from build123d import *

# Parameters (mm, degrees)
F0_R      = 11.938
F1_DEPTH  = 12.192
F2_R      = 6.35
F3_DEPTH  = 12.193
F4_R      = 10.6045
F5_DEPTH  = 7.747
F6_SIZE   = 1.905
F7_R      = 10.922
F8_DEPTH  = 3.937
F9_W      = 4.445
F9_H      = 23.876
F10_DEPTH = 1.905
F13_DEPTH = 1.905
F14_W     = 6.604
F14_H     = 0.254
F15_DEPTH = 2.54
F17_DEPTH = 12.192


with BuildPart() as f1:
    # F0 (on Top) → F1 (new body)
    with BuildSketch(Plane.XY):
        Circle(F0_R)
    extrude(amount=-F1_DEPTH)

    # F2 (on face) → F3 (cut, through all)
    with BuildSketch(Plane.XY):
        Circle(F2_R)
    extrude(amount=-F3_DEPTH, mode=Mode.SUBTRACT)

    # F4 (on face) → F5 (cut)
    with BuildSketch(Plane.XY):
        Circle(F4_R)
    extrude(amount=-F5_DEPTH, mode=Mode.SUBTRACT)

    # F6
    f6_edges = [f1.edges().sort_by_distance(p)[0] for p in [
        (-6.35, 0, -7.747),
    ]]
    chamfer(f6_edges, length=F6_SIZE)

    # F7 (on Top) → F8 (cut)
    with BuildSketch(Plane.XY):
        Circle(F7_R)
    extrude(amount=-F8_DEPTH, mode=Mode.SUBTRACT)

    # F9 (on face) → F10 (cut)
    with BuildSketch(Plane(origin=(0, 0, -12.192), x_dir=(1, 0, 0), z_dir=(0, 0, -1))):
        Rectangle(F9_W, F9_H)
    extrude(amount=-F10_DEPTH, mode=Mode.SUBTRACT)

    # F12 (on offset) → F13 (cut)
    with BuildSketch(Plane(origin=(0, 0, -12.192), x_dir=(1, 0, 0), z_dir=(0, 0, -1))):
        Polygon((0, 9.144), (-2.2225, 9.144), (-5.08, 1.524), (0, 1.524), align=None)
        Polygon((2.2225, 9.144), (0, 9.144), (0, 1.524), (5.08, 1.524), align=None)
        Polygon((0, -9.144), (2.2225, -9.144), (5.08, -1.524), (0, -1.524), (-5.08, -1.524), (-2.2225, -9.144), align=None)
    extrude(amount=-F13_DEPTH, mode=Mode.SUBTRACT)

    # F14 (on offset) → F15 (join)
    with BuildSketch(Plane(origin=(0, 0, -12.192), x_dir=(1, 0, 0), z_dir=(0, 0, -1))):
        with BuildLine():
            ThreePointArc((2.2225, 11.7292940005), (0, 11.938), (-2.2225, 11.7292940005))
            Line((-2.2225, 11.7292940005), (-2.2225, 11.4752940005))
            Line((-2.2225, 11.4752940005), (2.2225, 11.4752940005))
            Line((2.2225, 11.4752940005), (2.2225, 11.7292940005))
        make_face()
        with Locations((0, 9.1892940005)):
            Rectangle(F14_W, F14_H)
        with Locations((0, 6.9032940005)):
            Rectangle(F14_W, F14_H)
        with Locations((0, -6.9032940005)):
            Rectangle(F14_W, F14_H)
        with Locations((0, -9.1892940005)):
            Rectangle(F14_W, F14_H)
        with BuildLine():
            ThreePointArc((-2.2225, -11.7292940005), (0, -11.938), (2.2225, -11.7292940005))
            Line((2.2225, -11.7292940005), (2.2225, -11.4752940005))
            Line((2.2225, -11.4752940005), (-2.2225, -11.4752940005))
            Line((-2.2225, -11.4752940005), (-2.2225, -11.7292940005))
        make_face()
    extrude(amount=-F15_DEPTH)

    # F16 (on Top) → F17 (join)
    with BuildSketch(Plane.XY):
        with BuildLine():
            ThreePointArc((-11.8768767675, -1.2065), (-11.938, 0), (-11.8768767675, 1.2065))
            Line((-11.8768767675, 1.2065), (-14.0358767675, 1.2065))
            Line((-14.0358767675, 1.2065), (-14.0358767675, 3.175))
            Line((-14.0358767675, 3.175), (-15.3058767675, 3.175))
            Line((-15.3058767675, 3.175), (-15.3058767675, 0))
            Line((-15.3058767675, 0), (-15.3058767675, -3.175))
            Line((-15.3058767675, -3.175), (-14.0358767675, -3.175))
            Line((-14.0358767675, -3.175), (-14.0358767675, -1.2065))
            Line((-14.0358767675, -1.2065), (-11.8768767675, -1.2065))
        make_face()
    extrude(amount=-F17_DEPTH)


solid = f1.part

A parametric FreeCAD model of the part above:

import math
import FreeCAD as App
import Part
import Sketcher
from FreeCAD import Vector
Q = App.Units.Quantity


def edges_at(feature, points):
    """Names of the edges that pass closest to the given points."""
    edges = feature.Shape.Edges
    near = lambda p: min(range(len(edges)), key=lambda i: edges[i].distToShape(Part.Vertex(*p))[0])
    return sorted({f"Edge{near(p) + 1}" for p in points})

doc = App.newDocument("Part")
body = doc.addObject("PartDesign::Body", "Body")

sketch1 = doc.addObject("Sketcher::SketchObject", "Sketch")
body.addObject(sketch1)
sketch1.AttachmentSupport = (doc.XY_Plane, [""])
sketch1.MapMode = "FlatFace"
sketch1.addGeometry(Part.Circle(Vector(0, 0, 0), Vector(0, 0, 1), 12), False)
sketch1.addConstraint([
    Sketcher.Constraint("Coincident", 0, 3, -1, 1),
    Sketcher.Constraint("Diameter", 0, Q("0.94 in")),
])
pad1 = doc.addObject("PartDesign::Pad", "Pad")
body.addObject(pad1)
pad1.Profile = sketch1
pad1.Length = Q("0.48 in")
pad1.Reversed = True

sketch2 = doc.addObject("Sketcher::SketchObject", "Sketch001")
body.addObject(sketch2)
sketch2.AttachmentSupport = (doc.XY_Plane, [""])
sketch2.MapMode = "FlatFace"
sketch2.addGeometry(Part.Circle(Vector(0, 0, 0), Vector(0, 0, 1), 6), False)
sketch2.addConstraint([
    Sketcher.Constraint("Coincident", 0, 3, -1, 1),
    Sketcher.Constraint("Diameter", 0, Q("0.5 in")),
])
pocket1 = doc.addObject("PartDesign::Pocket", "Pocket")
body.addObject(pocket1)
pocket1.Profile = sketch2
pocket1.Type = "ThroughAll"

sketch3 = doc.addObject("Sketcher::SketchObject", "Sketch002")
body.addObject(sketch3)
sketch3.AttachmentSupport = (doc.XY_Plane, [""])
sketch3.MapMode = "FlatFace"
sketch3.addGeometry(Part.Circle(Vector(0, 0, 0), Vector(0, 0, 1), 11), False)
sketch3.addConstraint([
    Sketcher.Constraint("Coincident", 0, 3, -1, 1),
    Sketcher.Constraint("Diameter", 0, Q("0.835 in")),
])
pocket2 = doc.addObject("PartDesign::Pocket", "Pocket001")
body.addObject(pocket2)
pocket2.Profile = sketch3
pocket2.Length = Q("0.305 in")
doc.recompute()

chamfer = doc.addObject("PartDesign::Chamfer", "Chamfer")
body.addObject(chamfer)
chamfer.Base = (pocket2, edges_at(pocket2, [(-6.35, 0, -7.747)]))
chamfer.Size = Q("0.075 in")

sketch4 = doc.addObject("Sketcher::SketchObject", "Sketch003")
body.addObject(sketch4)
sketch4.AttachmentSupport = (doc.XY_Plane, [""])
sketch4.MapMode = "FlatFace"
sketch4.addGeometry(Part.Circle(Vector(0, 0, 0), Vector(0, 0, 1), 11), False)
sketch4.addConstraint([
    Sketcher.Constraint("Coincident", 0, 3, -1, 1),
    Sketcher.Constraint("Diameter", 0, Q("0.86 in")),
])
pocket3 = doc.addObject("PartDesign::Pocket", "Pocket002")
body.addObject(pocket3)
pocket3.Profile = sketch4
pocket3.Length = Q("0.155 in")

sketch5 = doc.addObject("Sketcher::SketchObject", "Sketch004")
body.addObject(sketch5)
sketch5.AttachmentSupport = (doc.XY_Plane, [""])
sketch5.MapMode = "FlatFace"
sketch5.AttachmentOffset = App.Placement(Vector(0, 0, -0.48 * 25.4), App.Rotation())
sketch5.addGeometry([
    Part.LineSegment(Vector(-2.2, -11.9, 0), Vector(-2.2, 11.9, 0)),
    Part.LineSegment(Vector(-2.2, 11.9, 0), Vector(2.2, 11.9, 0)),
    Part.LineSegment(Vector(2.2, 11.9, 0), Vector(2.2, -11.9, 0)),
    Part.LineSegment(Vector(2.2, -11.9, 0), Vector(-2.2, -11.9, 0)),
], False)
sketch5.addConstraint([
    Sketcher.Constraint("Coincident", 0, 2, 1, 1),
    Sketcher.Constraint("Coincident", 1, 2, 2, 1),
    Sketcher.Constraint("Coincident", 2, 2, 3, 1),
    Sketcher.Constraint("Coincident", 3, 2, 0, 1),
    Sketcher.Constraint("Vertical", 0),
    Sketcher.Constraint("Horizontal", 1),
    Sketcher.Constraint("Vertical", 2),
    Sketcher.Constraint("Horizontal", 3),
    Sketcher.Constraint("Symmetric", 0, 2, 2, 2, -1, 1),
    Sketcher.Constraint("DistanceY", 0, 1, 0, 2, Q("0.94 in")),
    Sketcher.Constraint("DistanceX", 1, 1, 1, 2, Q("0.175 in")),
])
pocket4 = doc.addObject("PartDesign::Pocket", "Pocket003")
body.addObject(pocket4)
pocket4.Profile = sketch5
pocket4.Length = Q("0.075 in")
pocket4.Reversed = True

sketch6 = doc.addObject("Sketcher::SketchObject", "Sketch005")
body.addObject(sketch6)
sketch6.AttachmentSupport = (doc.XY_Plane, [""])
sketch6.MapMode = "FlatFace"
sketch6.AttachmentOffset = App.Placement(Vector(0, 0, -0.48 * 25.4), App.Rotation())
sketch6.addGeometry([
    Part.LineSegment(Vector(-2.2, -9.1, 0), Vector(-5.1, -1.5, 0)),
    Part.LineSegment(Vector(-5.1, -1.5, 0), Vector(5.1, -1.5, 0)),
    Part.LineSegment(Vector(5.1, -1.5, 0), Vector(2.2, -9.1, 0)),
    Part.LineSegment(Vector(2.2, -9.1, 0), Vector(-2.2, -9.1, 0)),
    Part.LineSegment(Vector(2.2, 9.1, 0), Vector(5.1, 1.5, 0)),
    Part.LineSegment(Vector(5.1, 1.5, 0), Vector(-5.1, 1.5, 0)),
    Part.LineSegment(Vector(-5.1, 1.5, 0), Vector(-2.2, 9.1, 0)),
    Part.LineSegment(Vector(-2.2, 9.1, 0), Vector(2.2, 9.1, 0)),
], False)
sketch6.addConstraint([
    Sketcher.Constraint("Coincident", 0, 2, 1, 1),
    Sketcher.Constraint("Coincident", 1, 2, 2, 1),
    Sketcher.Constraint("Coincident", 2, 2, 3, 1),
    Sketcher.Constraint("Coincident", 3, 2, 0, 1),
    Sketcher.Constraint("Coincident", 4, 2, 5, 1),
    Sketcher.Constraint("Coincident", 5, 2, 6, 1),
    Sketcher.Constraint("Coincident", 6, 2, 7, 1),
    Sketcher.Constraint("Coincident", 7, 2, 4, 1),
    Sketcher.Constraint("Horizontal", 1),
    Sketcher.Constraint("Horizontal", 3),
    Sketcher.Constraint("Horizontal", 5),
    Sketcher.Constraint("Horizontal", 7),
    Sketcher.Constraint("Symmetric", 0, 2, 4, 2, -1, 1),
    Sketcher.Constraint("Symmetric", 2, 2, 6, 2, -1, 1),
    Sketcher.Constraint("Parallel", 0, 4),
    Sketcher.Constraint("Parallel", 2, 6),
    Sketcher.Constraint("Vertical", 1, 2, 4, 2),
    Sketcher.Constraint("Vertical", 3, 2, 6, 2),
    Sketcher.Constraint("DistanceX", 1, 1, 1, 2, Q("0.4 in")),
    Sketcher.Constraint("DistanceY", 2, 2, 1, 2, Q("0.3 in")),
    Sketcher.Constraint("DistanceX", 3, 2, 3, 1, Q("0.175 in")),
    Sketcher.Constraint("DistanceY", 0, 2, -1, 1, Q("0.06 in")),
])
pocket5 = doc.addObject("PartDesign::Pocket", "Pocket004")
body.addObject(pocket5)
pocket5.Profile = sketch6
pocket5.Length = Q("0.075 in")
pocket5.Reversed = True

sketch7 = doc.addObject("Sketcher::SketchObject", "Sketch006")
body.addObject(sketch7)
sketch7.AttachmentSupport = (doc.XY_Plane, [""])
sketch7.MapMode = "FlatFace"
sketch7.AttachmentOffset = App.Placement(Vector(0, 0, -0.48 * 25.4), App.Rotation())
sketch7.addGeometry([
    Part.ArcOfCircle(Part.Circle(Vector(0, 0, 0), Vector(0, 0, 1), 11.94), math.radians(-101), math.radians(-79)),
    Part.LineSegment(Vector(-2.22, -11.73, 0), Vector(-2.22, -11.48, 0)),
    Part.LineSegment(Vector(-2.22, -11.48, 0), Vector(2.22, -11.48, 0)),
    Part.LineSegment(Vector(2.22, -11.48, 0), Vector(2.22, -11.73, 0)),
    Part.LineSegment(Vector(-3.3, -9.32, 0), Vector(-3.3, -9.06, 0)),
    Part.LineSegment(Vector(-3.3, -9.06, 0), Vector(3.3, -9.06, 0)),
    Part.LineSegment(Vector(3.3, -9.06, 0), Vector(3.3, -9.32, 0)),
    Part.LineSegment(Vector(3.3, -9.32, 0), Vector(-3.3, -9.32, 0)),
    Part.LineSegment(Vector(-3.3, -7.03, 0), Vector(-3.3, -6.78, 0)),
    Part.LineSegment(Vector(-3.3, -6.78, 0), Vector(3.3, -6.78, 0)),
    Part.LineSegment(Vector(3.3, -6.78, 0), Vector(3.3, -7.03, 0)),
    Part.LineSegment(Vector(3.3, -7.03, 0), Vector(-3.3, -7.03, 0)),
    Part.LineSegment(Vector(-3.3, 6.78, 0), Vector(-3.3, 7.03, 0)),
    Part.LineSegment(Vector(-3.3, 7.03, 0), Vector(3.3, 7.03, 0)),
    Part.LineSegment(Vector(3.3, 7.03, 0), Vector(3.3, 6.78, 0)),
    Part.LineSegment(Vector(3.3, 6.78, 0), Vector(-3.3, 6.78, 0)),
    Part.LineSegment(Vector(-3.3, 9.06, 0), Vector(-3.3, 9.32, 0)),
    Part.LineSegment(Vector(-3.3, 9.32, 0), Vector(3.3, 9.32, 0)),
    Part.LineSegment(Vector(3.3, 9.32, 0), Vector(3.3, 9.06, 0)),
    Part.LineSegment(Vector(3.3, 9.06, 0), Vector(-3.3, 9.06, 0)),
    Part.ArcOfCircle(Part.Circle(Vector(0, 0, 0), Vector(0, 0, 1), 11.94), math.radians(79), math.radians(101)),
    Part.LineSegment(Vector(2.22, 11.73, 0), Vector(2.22, 11.48, 0)),
    Part.LineSegment(Vector(2.22, 11.48, 0), Vector(-2.22, 11.48, 0)),
    Part.LineSegment(Vector(-2.22, 11.48, 0), Vector(-2.22, 11.73, 0)),
], False)
sketch7.addConstraint([
    Sketcher.Constraint("Coincident", 0, 1, 1, 1),
    Sketcher.Constraint("Coincident", 1, 2, 2, 1),
    Sketcher.Constraint("Coincident", 2, 2, 3, 1),
    Sketcher.Constraint("Coincident", 3, 2, 0, 2),
    Sketcher.Constraint("Coincident", 4, 2, 5, 1),
    Sketcher.Constraint("Coincident", 5, 2, 6, 1),
    Sketcher.Constraint("Coincident", 6, 2, 7, 1),
    Sketcher.Constraint("Coincident", 7, 2, 4, 1),
    Sketcher.Constraint("Coincident", 8, 2, 9, 1),
    Sketcher.Constraint("Coincident", 9, 2, 10, 1),
    Sketcher.Constraint("Coincident", 10, 2, 11, 1),
    Sketcher.Constraint("Coincident", 11, 2, 8, 1),
    Sketcher.Constraint("Coincident", 12, 2, 13, 1),
    Sketcher.Constraint("Coincident", 13, 2, 14, 1),
    Sketcher.Constraint("Coincident", 14, 2, 15, 1),
    Sketcher.Constraint("Coincident", 15, 2, 12, 1),
    Sketcher.Constraint("Coincident", 16, 2, 17, 1),
    Sketcher.Constraint("Coincident", 17, 2, 18, 1),
    Sketcher.Constraint("Coincident", 18, 2, 19, 1),
    Sketcher.Constraint("Coincident", 19, 2, 16, 1),
    Sketcher.Constraint("Coincident", 20, 1, 21, 1),
    Sketcher.Constraint("Coincident", 21, 2, 22, 1),
    Sketcher.Constraint("Coincident", 22, 2, 23, 1),
    Sketcher.Constraint("Coincident", 23, 2, 20, 2),
    Sketcher.Constraint("Vertical", 1),
    Sketcher.Constraint("Horizontal", 2),
    Sketcher.Constraint("Vertical", 3),
    Sketcher.Constraint("Vertical", 4),
    Sketcher.Constraint("Horizontal", 5),
    Sketcher.Constraint("Vertical", 6),
    Sketcher.Constraint("Horizontal", 7),
    Sketcher.Constraint("Vertical", 8),
    Sketcher.Constraint("Horizontal", 9),
    Sketcher.Constraint("Vertical", 10),
    Sketcher.Constraint("Horizontal", 11),
    Sketcher.Constraint("Vertical", 12),
    Sketcher.Constraint("Horizontal", 13),
    Sketcher.Constraint("Vertical", 14),
    Sketcher.Constraint("Horizontal", 15),
    Sketcher.Constraint("Vertical", 16),
    Sketcher.Constraint("Horizontal", 17),
    Sketcher.Constraint("Vertical", 18),
    Sketcher.Constraint("Horizontal", 19),
    Sketcher.Constraint("Vertical", 21),
    Sketcher.Constraint("Horizontal", 22),
    Sketcher.Constraint("Vertical", 23),
    Sketcher.Constraint("Coincident", 0, 3, -1, 1),
    Sketcher.Constraint("Coincident", 20, 3, -1, 1),
    Sketcher.Constraint("Equal", 0, 20),
    Sketcher.Constraint("Symmetric", 10, 2, 12, 2, -1, 1),
    Sketcher.Constraint("Symmetric", 8, 2, 14, 2, -1, 1),
    Sketcher.Constraint("Symmetric", 6, 2, 16, 2, -1, 1),
    Sketcher.Constraint("Symmetric", 4, 2, 18, 2, -1, 1),
    Sketcher.Constraint("Symmetric", 1, 2, 21, 2, -1, 1),
    Sketcher.Constraint("Horizontal", 0, 1, 3, 2),
    Sketcher.Constraint("Horizontal", 20, 1, 23, 2),
    Sketcher.Constraint("Vertical", 7, 2, 8, 2),
    Sketcher.Constraint("Vertical", 6, 2, 9, 2),
    Sketcher.Constraint("Vertical", 11, 2, 12, 2),
    Sketcher.Constraint("Equal", 3, 4),
    Sketcher.Constraint("Equal", 6, 8),
    Sketcher.Constraint("Radius", 0, Q("0.47 in")),
    Sketcher.Constraint("DistanceX", 5, 1, 5, 2, Q("0.26 in")),
    Sketcher.Constraint("DistanceY", 1, 1, 1, 2, Q("0.01 in")),
    Sketcher.Constraint("DistanceY", 7, 2, 8, 2, Q("0.1 in")),
    Sketcher.Constraint("DistanceX", 2, 1, 2, 2, Q("0.175 in")),
    Sketcher.Constraint("DistanceY", 1, 2, 4, 2, Q("0.095 in")),
])
pad2 = doc.addObject("PartDesign::Pad", "Pad001")
body.addObject(pad2)
pad2.Profile = sketch7
pad2.Length = Q("0.1 in")

sketch8 = doc.addObject("Sketcher::SketchObject", "Sketch007")
body.addObject(sketch8)
sketch8.AttachmentSupport = (doc.XY_Plane, [""])
sketch8.MapMode = "FlatFace"
sketch8.addGeometry([
    Part.ArcOfCircle(Part.Circle(Vector(0, 0, 0), Vector(0, 0, 1), 11.9), math.radians(174.2), math.radians(185.8)),
    Part.LineSegment(Vector(-11.9, 1.2, 0), Vector(-14, 1.2, 0)),
    Part.LineSegment(Vector(-14, 1.2, 0), Vector(-14, 3.2, 0)),
    Part.LineSegment(Vector(-14, 3.2, 0), Vector(-15.3, 3.2, 0)),
    Part.LineSegment(Vector(-15.3, 3.2, 0), Vector(-15.3, -3.2, 0)),
    Part.LineSegment(Vector(-15.3, -3.2, 0), Vector(-14, -3.2, 0)),
    Part.LineSegment(Vector(-14, -3.2, 0), Vector(-14, -1.2, 0)),
    Part.LineSegment(Vector(-14, -1.2, 0), Vector(-11.9, -1.2, 0)),
], False)
sketch8.addConstraint([
    Sketcher.Constraint("Coincident", 0, 1, 1, 1),
    Sketcher.Constraint("Coincident", 1, 2, 2, 1),
    Sketcher.Constraint("Coincident", 2, 2, 3, 1),
    Sketcher.Constraint("Coincident", 3, 2, 4, 1),
    Sketcher.Constraint("Coincident", 4, 2, 5, 1),
    Sketcher.Constraint("Coincident", 5, 2, 6, 1),
    Sketcher.Constraint("Coincident", 6, 2, 7, 1),
    Sketcher.Constraint("Coincident", 7, 2, 0, 2),
    Sketcher.Constraint("Horizontal", 1),
    Sketcher.Constraint("Vertical", 2),
    Sketcher.Constraint("Horizontal", 3),
    Sketcher.Constraint("Vertical", 4),
    Sketcher.Constraint("Horizontal", 5),
    Sketcher.Constraint("Vertical", 6),
    Sketcher.Constraint("Horizontal", 7),
    Sketcher.Constraint("Coincident", 0, 3, -1, 1),
    Sketcher.Constraint("Symmetric", 2, 2, 5, 2, -1),
    Sketcher.Constraint("Vertical", 0, 1, 7, 2),
    Sketcher.Constraint("Radius", 0, Q("0.47 in")),
    Sketcher.Constraint("DistanceX", 3, 2, 3, 1, Q("0.05 in")),
    Sketcher.Constraint("DistanceY", 4, 2, 4, 1, Q("0.25 in")),
    Sketcher.Constraint("DistanceX", 1, 2, 1, 1, Q("0.085 in")),
    Sketcher.Constraint("DistanceY", 2, 1, 2, 2, Q("0.0775 in")),
])
pad3 = doc.addObject("PartDesign::Pad", "Pad002")
body.addObject(pad3)
pad3.Profile = sketch8
pad3.Length = Q("0.48 in")
pad3.Reversed = True

doc.recompute()
